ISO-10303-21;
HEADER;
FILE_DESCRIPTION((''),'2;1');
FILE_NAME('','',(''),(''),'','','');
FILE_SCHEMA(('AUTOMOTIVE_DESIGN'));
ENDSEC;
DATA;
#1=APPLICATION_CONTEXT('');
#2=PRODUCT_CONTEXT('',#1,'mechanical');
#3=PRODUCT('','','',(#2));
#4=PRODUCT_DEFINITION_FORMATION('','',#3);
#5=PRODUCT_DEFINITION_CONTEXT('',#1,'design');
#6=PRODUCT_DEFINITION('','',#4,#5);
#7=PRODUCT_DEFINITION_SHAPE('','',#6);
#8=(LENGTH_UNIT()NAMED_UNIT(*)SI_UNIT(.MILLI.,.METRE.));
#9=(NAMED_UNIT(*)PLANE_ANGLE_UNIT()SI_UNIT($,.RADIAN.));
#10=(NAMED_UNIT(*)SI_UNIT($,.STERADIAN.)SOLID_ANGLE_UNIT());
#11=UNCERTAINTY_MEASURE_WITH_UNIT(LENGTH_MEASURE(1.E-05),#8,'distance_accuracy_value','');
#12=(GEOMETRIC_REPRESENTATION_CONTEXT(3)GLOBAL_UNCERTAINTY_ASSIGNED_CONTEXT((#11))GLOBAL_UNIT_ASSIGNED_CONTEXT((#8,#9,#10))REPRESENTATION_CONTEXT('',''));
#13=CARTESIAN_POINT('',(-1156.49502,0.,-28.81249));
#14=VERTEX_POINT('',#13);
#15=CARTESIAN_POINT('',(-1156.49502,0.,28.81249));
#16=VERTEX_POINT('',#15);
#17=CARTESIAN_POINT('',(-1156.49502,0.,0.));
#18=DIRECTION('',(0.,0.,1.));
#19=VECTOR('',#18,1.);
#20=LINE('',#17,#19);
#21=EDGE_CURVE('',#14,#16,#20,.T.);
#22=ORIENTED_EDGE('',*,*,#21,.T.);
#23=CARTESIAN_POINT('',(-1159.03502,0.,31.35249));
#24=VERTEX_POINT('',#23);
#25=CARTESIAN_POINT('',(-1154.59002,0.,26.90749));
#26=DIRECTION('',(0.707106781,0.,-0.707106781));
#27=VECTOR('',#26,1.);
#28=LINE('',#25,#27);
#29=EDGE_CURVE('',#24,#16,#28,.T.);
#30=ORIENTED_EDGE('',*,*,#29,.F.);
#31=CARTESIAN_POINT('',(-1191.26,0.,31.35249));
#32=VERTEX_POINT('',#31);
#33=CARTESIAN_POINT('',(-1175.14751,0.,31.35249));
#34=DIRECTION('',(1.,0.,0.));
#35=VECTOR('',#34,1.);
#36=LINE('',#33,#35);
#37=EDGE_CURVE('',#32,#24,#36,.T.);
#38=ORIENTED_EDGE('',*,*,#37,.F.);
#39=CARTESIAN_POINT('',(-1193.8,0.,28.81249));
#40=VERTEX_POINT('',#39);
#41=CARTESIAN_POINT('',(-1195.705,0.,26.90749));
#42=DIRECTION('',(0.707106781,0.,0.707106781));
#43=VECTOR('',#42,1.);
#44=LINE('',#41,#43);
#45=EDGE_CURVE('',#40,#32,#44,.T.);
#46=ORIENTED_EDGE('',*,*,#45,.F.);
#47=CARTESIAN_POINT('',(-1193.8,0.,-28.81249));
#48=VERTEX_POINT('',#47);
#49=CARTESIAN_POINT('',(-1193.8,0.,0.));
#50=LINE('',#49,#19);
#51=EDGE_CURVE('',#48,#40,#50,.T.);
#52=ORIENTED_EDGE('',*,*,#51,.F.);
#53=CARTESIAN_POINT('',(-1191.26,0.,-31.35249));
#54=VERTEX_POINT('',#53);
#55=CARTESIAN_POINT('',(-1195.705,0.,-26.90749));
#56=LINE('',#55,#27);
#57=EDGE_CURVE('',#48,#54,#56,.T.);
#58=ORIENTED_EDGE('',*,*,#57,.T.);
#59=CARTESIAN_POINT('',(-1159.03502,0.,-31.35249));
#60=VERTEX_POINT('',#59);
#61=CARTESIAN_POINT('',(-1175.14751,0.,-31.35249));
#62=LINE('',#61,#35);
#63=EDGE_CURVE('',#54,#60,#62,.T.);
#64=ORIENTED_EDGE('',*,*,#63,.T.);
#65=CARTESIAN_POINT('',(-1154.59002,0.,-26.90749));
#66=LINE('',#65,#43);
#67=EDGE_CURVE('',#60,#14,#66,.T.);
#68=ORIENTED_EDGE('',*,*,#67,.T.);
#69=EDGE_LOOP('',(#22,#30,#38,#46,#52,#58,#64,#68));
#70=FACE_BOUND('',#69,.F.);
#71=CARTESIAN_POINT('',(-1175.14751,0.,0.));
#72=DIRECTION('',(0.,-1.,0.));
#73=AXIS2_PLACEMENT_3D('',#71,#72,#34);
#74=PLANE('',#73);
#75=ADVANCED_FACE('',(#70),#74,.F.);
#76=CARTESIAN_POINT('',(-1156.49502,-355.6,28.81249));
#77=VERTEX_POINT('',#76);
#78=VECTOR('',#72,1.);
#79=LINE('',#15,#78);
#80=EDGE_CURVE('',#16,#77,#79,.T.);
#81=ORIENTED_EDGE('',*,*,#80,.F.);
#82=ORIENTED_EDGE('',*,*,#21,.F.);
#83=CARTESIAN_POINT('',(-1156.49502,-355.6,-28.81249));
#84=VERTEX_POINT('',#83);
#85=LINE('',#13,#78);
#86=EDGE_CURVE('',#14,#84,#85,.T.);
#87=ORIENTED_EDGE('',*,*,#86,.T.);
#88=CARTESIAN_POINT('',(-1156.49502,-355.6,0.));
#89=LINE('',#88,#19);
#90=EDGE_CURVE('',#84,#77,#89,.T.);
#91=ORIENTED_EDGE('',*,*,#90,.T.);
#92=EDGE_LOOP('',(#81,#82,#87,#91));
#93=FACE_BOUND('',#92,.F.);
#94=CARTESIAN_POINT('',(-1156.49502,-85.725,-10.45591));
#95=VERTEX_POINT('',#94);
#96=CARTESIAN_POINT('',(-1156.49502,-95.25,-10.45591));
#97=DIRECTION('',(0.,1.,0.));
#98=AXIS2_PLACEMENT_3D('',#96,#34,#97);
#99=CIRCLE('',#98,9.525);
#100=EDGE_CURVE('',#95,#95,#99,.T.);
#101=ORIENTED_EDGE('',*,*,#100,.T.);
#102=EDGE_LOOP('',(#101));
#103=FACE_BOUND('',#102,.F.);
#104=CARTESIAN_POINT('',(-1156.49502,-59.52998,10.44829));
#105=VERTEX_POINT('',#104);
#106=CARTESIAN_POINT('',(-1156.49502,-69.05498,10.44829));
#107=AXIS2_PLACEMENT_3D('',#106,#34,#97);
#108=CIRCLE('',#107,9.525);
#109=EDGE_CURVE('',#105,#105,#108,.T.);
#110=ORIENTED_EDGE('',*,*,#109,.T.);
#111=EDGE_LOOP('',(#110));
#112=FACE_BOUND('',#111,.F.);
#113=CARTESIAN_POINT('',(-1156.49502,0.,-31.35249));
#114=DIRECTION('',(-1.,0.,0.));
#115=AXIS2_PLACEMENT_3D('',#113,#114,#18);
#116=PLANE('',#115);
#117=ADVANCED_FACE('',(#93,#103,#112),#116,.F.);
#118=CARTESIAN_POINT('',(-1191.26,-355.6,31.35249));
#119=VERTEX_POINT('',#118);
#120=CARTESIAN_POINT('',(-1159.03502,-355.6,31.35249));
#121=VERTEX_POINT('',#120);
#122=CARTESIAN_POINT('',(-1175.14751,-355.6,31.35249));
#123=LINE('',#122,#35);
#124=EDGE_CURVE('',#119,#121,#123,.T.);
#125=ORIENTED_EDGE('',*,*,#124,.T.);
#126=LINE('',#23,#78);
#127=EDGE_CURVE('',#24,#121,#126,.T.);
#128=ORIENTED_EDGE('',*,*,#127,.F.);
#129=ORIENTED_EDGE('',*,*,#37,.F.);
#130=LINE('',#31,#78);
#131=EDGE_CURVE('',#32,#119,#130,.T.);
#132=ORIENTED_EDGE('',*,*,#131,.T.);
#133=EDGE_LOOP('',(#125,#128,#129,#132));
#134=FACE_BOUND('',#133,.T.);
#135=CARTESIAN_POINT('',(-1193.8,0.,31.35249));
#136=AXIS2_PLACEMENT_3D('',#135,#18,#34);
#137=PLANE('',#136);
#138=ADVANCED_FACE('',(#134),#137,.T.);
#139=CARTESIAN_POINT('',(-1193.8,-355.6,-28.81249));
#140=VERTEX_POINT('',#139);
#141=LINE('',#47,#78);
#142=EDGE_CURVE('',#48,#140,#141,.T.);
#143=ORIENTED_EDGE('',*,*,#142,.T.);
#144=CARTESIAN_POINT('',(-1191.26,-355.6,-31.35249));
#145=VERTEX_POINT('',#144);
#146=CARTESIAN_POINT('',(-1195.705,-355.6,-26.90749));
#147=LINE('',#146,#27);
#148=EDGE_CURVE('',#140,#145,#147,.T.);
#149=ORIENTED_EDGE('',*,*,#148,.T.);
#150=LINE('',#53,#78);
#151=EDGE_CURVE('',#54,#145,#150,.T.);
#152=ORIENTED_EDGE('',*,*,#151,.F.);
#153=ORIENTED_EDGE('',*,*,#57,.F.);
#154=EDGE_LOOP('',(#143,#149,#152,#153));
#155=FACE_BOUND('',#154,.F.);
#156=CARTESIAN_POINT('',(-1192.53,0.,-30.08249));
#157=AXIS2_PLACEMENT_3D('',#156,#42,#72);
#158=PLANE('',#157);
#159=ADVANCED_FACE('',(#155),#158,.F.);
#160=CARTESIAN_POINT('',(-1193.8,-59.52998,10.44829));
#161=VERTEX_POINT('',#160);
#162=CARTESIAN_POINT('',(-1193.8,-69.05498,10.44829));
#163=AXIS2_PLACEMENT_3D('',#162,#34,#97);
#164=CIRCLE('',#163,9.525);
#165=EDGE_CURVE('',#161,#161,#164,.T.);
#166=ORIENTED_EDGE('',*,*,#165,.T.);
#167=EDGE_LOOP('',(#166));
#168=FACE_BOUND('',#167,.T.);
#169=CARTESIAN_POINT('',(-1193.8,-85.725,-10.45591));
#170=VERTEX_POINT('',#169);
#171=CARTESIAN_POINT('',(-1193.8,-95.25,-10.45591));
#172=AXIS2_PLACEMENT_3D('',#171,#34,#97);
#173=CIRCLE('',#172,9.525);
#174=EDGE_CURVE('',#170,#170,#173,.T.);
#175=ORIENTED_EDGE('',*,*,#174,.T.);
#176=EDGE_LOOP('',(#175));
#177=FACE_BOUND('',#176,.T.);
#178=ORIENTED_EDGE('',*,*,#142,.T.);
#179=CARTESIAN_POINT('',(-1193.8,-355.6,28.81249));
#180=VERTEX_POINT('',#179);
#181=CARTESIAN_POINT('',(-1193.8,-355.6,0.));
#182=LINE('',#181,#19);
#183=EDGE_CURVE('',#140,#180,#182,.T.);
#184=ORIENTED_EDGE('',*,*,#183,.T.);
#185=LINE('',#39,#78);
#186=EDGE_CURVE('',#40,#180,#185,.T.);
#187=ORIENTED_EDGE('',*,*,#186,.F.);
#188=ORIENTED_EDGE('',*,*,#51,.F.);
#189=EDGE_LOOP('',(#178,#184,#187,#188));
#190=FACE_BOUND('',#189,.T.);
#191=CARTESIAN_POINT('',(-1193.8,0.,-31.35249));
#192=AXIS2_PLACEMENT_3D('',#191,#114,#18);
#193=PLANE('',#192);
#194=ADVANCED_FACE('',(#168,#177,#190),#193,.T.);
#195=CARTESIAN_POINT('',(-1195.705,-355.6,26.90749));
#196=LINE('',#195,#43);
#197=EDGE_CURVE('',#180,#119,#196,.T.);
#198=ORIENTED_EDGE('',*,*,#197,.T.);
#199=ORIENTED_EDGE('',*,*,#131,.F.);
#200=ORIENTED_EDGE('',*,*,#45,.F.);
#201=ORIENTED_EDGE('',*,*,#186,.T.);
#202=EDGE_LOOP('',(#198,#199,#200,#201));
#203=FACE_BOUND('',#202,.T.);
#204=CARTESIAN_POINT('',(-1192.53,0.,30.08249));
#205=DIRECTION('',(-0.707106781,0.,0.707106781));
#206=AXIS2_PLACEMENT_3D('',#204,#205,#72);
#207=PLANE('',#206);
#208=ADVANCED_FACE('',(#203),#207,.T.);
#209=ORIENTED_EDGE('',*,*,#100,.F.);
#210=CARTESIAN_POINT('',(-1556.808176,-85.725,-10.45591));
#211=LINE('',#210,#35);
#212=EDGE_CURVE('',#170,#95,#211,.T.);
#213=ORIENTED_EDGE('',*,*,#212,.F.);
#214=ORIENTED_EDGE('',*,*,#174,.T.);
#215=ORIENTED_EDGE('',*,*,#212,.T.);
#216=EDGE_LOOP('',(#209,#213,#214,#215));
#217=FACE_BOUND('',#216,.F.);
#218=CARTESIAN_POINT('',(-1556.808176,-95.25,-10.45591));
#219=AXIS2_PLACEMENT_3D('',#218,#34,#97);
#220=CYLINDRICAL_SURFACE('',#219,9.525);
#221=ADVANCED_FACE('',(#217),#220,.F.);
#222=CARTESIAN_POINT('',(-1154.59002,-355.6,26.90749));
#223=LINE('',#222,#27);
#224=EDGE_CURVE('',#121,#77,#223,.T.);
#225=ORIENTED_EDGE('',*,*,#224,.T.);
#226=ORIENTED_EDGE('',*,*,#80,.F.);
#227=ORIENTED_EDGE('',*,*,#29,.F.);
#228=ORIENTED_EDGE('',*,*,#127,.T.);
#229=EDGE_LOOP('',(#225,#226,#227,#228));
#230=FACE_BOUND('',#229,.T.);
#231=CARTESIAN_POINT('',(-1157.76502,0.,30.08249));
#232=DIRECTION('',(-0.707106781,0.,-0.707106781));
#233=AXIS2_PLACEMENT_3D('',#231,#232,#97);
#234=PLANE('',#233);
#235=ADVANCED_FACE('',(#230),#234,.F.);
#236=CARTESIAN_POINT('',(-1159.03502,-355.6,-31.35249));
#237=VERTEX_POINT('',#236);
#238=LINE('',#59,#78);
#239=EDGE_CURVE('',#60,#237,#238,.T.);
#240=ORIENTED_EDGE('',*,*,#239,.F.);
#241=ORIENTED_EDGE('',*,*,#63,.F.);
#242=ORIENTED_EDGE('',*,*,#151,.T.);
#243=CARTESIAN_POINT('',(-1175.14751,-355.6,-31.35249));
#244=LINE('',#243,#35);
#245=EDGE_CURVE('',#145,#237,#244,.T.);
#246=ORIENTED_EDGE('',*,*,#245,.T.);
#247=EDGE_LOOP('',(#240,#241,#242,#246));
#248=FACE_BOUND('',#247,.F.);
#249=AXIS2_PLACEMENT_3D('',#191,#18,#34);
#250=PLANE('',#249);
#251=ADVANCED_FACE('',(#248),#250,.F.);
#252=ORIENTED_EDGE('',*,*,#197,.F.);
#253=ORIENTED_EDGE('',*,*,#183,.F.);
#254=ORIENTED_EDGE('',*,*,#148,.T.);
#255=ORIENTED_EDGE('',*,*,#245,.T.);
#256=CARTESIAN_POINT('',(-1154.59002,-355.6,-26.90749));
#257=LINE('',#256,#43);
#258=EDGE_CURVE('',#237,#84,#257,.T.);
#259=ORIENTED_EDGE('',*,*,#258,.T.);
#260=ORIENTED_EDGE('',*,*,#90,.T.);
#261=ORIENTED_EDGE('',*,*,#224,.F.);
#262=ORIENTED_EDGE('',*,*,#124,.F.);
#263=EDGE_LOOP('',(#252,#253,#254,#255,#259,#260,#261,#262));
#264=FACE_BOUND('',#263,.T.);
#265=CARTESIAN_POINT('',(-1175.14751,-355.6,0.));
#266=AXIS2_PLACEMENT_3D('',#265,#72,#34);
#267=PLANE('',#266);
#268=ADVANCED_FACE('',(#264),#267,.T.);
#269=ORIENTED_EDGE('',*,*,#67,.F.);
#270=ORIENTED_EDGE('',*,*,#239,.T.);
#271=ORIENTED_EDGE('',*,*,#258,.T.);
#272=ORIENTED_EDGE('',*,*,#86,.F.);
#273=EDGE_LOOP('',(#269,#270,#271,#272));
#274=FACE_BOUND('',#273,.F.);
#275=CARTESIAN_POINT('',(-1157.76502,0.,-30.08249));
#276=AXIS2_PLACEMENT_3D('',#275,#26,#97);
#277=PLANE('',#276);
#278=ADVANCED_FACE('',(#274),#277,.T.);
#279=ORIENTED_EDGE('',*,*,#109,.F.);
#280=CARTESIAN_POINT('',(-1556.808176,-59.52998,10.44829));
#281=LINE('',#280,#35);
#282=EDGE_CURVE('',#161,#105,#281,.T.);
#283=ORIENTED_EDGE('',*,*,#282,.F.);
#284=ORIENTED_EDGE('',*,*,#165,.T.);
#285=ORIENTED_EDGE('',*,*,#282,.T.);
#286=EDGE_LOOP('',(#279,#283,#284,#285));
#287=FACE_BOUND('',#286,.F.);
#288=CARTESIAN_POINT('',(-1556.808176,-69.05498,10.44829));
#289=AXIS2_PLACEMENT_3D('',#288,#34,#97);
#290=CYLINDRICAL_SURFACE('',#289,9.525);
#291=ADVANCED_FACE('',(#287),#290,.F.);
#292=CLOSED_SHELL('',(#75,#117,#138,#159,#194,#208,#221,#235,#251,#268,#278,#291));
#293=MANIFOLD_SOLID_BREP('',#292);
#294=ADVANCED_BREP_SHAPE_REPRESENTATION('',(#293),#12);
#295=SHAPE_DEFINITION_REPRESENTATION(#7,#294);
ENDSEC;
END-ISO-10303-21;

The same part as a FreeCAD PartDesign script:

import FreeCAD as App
import Part
import Sketcher
Q = App.Units.Quantity


def edges_at(feature, points):
    """Names of the edges that pass closest to the given points."""
    edges = feature.Shape.Edges
    near = lambda p: min(range(len(edges)), key=lambda i: edges[i].distToShape(Part.Vertex(*p))[0])
    return sorted({f"Edge{near(p) + 1}" for p in points})


def add_polygon(sketch, points):
    """Adds a closed chain of lines whose ends are joined by coincident constraints."""
    first, n = sketch.GeometryCount, len(points)
    for a, b in zip(points, points[1:] + points[:1]):
        sketch.addGeometry(Part.LineSegment(App.Vector(*a, 0), App.Vector(*b, 0)), False)
    for i in range(n):
        sketch.addConstraint(Sketcher.Constraint("Coincident", first + i, 2, first + (i + 1) % n, 1))

doc = App.newDocument("Part")
params = doc.addObject("Spreadsheet::Sheet", "Params")
for row, (alias, value) in enumerate([
    ("pad1_length", "14 in"),
    ("sketch2_diameter", "0.75 in"),
    ("hole_diameter", "0.75 in"),
    ("chamfer_size", "0.1 in"),
], start=1):
    params.set(f"A{row}", alias)
    params.set(f"B{row}", "=" + value)
    params.setAlias(f"B{row}", alias)

body = doc.addObject("PartDesign::Body", "Body")

sketch1 = doc.addObject("Sketcher::SketchObject", "Sketch")
body.addObject(sketch1)
sketch1.AttachmentSupport = (doc.XZ_Plane, [""])
sketch1.MapMode = "FlatFace"
add_polygon(sketch1, [(-1193.8, 31.35249), (-1193.8, -31.35249), (-1156.49502, -31.35249), (-1156.49502, 31.35249)])
sketch1.addConstraint(Sketcher.Constraint("Vertical", 0))
sketch1.addConstraint(Sketcher.Constraint("Horizontal", 1))
sketch1.addConstraint(Sketcher.Constraint("Vertical", 2))
sketch1.addConstraint(Sketcher.Constraint("Horizontal", 3))
sketch1.addConstraint(Sketcher.Constraint("DistanceX", 0, 2, -1, 1, Q("47 in")))
sketch1.addConstraint(Sketcher.Constraint("DistanceX", 1, 1, 1, 2, Q("1.4687 in")))
sketch1.addConstraint(Sketcher.Constraint("DistanceY", 0, 2, 0, 1, Q("2.4687 in")))
sketch1.addConstraint(Sketcher.Constraint("DistanceY", 0, 2, -1, 1, 31.35249))
pad1 = doc.addObject("PartDesign::Pad", "Pad")
body.addObject(pad1)
pad1.Profile = sketch1
pad1.setExpression("Length", "Params.pad1_length")

sketch2 = doc.addObject("Sketcher::SketchObject", "Sketch001")
body.addObject(sketch2)
sketch2.AttachmentSupport = (doc.YZ_Plane, [""])
sketch2.MapMode = "FlatFace"
sketch2.AttachmentOffset = App.Placement(App.Vector(0, 0, -47 * 25.4), App.Rotation())
sketch2.addGeometry(Part.Circle(App.Vector(-69.05498, 10.44829, 0), App.Vector(0, 0, 1), 9.525), False)
sketch2.addGeometry(Part.Circle(App.Vector(-95.25, -10.45591, 0), App.Vector(0, 0, 1), 9.525), False)
sketch2.addConstraint(Sketcher.Constraint("Equal", 0, 1))
sketch2.addConstraint(Sketcher.Constraint("Diameter", 0, Q("0.75 in")))
sketch2.addConstraint(Sketcher.Constraint("DistanceX", 1, 3, -1, 1, Q("3.75 in")))
sketch2.addConstraint(Sketcher.Constraint("DistanceY", 1, 3, 0, 3, Q("0.823 in")))
sketch2.addConstraint(Sketcher.Constraint("DistanceX", 0, 3, -1, 1, Q("2.7187 in")))
sketch2.addConstraint(Sketcher.Constraint("DistanceY", -1, 1, 0, 3, 10.44829))
sketch2.setExpression("Constraints[1]", "Params.sketch2_diameter")
doc.recompute()
hole = doc.addObject("PartDesign::Hole", "Hole")
body.addObject(hole)
hole.Profile = sketch2
hole.ThreadType = "None"
hole.setExpression("Diameter", "Params.hole_diameter")
hole.DepthType = "ThroughAll"
hole.Reversed = True
doc.recompute()

chamfer = doc.addObject("PartDesign::Chamfer", "Chamfer")
body.addObject(chamfer)
chamfer.Base = (hole, edges_at(hole, [
    (-1193.8, -177.8, 31.352),
    (-1156.495, -177.8, 31.352),
    (-1193.8, -177.8, -31.352),
    (-1156.495, -177.8, -31.352),
]))
chamfer.setExpression("Size", "Params.chamfer_size")

doc.recompute()
